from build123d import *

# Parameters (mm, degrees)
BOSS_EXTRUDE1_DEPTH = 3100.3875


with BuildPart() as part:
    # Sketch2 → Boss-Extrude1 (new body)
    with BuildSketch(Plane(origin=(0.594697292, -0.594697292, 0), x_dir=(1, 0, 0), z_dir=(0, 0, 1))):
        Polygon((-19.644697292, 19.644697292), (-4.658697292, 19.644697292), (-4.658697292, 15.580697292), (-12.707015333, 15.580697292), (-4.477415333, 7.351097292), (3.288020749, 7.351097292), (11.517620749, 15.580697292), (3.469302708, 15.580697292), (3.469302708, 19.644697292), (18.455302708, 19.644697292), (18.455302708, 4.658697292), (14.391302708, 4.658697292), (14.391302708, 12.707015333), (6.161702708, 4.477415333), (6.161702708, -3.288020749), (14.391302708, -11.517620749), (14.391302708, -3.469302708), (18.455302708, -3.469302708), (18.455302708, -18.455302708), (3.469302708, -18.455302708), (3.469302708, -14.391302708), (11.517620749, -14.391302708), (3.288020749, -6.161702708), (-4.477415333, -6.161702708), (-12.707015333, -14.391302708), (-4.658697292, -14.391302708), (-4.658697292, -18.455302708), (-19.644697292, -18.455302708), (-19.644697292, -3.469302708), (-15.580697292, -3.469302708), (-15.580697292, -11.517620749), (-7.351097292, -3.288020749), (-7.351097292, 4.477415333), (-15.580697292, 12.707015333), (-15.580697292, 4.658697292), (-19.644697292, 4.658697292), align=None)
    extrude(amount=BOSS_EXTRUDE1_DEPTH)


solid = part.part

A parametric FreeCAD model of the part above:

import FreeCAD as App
import Part
import Sketcher

V = App.Vector
Q = App.Units.Quantity


def add_polygon(sketch, points):
    """Adds a closed chain of lines whose ends are joined by coincident constraints."""
    first, n = sketch.GeometryCount, len(points)
    for a, b in zip(points, points[1:] + points[:1]):
        sketch.addGeometry(Part.LineSegment(App.Vector(*a, 0), App.Vector(*b, 0)), False)
    for i in range(n):
        sketch.addConstraint(Sketcher.Constraint("Coincident", first + i, 2, first + (i + 1) % n, 1))

doc = App.newDocument("Part")
params = doc.addObject("Spreadsheet::Sheet", "Params")
for row, (alias, value) in enumerate([
    ("sketch1_width", "0.59 in"),
    ("sketch1_width2", "0.16 in"),
    ("pad1_length", "122.0625 in"),
], start=1):
    params.set(f"A{row}", alias)
    params.set(f"B{row}", "=" + value)
    params.setAlias(f"B{row}", alias)

body = doc.addObject("PartDesign::Body", "Body")

sketch1 = doc.addObject("Sketcher::SketchObject", "Sketch")
body.addObject(sketch1)
sketch1.AttachmentSupport = (doc.XY_Plane, [""])
sketch1.MapMode = "FlatFace"
add_polygon(sketch1, [(-4.064, 19.05), (-19.05, 19.05), (-19.05, 4.064), (-14.986, 4.064), (-14.986, 12.112318), (-6.7564, 3.882718), (-6.7564, -3.882718), (-14.986, -12.112318), (-14.986, -4.064), (-19.05, -4.064), (-19.05, -19.05), (-4.064, -19.05), (-4.064, -14.986), (-12.112318, -14.986), (-3.882718, -6.7564), (3.882718, -6.7564), (12.112318, -14.986), (4.064, -14.986), (4.064, -19.05), (19.05, -19.05), (19.05, -4.064), (14.986, -4.064), (14.986, -12.112318), (6.7564, -3.882718), (6.7564, 3.882718), (14.986, 12.112318), (14.986, 4.064), (19.05, 4.064), (19.05, 19.05), (4.064, 19.05), (4.064, 14.986), (12.112318, 14.986), (3.882718, 6.7564), (-3.882718, 6.7564), (-12.112318, 14.986), (-4.064, 14.986)])
sketch1.addConstraint(Sketcher.Constraint("Horizontal", 0))
sketch1.addConstraint(Sketcher.Constraint("Vertical", 1))
sketch1.addConstraint(Sketcher.Constraint("Horizontal", 2))
sketch1.addConstraint(Sketcher.Constraint("Vertical", 3))
sketch1.addConstraint(Sketcher.Constraint("Vertical", 5))
sketch1.addConstraint(Sketcher.Constraint("Vertical", 7))
sketch1.addConstraint(Sketcher.Constraint("Horizontal", 8))
sketch1.addConstraint(Sketcher.Constraint("Vertical", 9))
sketch1.addConstraint(Sketcher.Constraint("Horizontal", 10))
sketch1.addConstraint(Sketcher.Constraint("Vertical", 11))
sketch1.addConstraint(Sketcher.Constraint("Horizontal", 12))
sketch1.addConstraint(Sketcher.Constraint("Horizontal", 14))
sketch1.addConstraint(Sketcher.Constraint("Horizontal", 16))
sketch1.addConstraint(Sketcher.Constraint("Vertical", 17))
sketch1.addConstraint(Sketcher.Constraint("Horizontal", 18))
sketch1.addConstraint(Sketcher.Constraint("Vertical", 19))
sketch1.addConstraint(Sketcher.Constraint("Horizontal", 20))
sketch1.addConstraint(Sketcher.Constraint("Vertical", 21))
sketch1.addConstraint(Sketcher.Constraint("Vertical", 23))
sketch1.addConstraint(Sketcher.Constraint("Vertical", 25))
sketch1.addConstraint(Sketcher.Constraint("Horizontal", 26))
sketch1.addConstraint(Sketcher.Constraint("Vertical", 27))
sketch1.addConstraint(Sketcher.Constraint("Horizontal", 28))
sketch1.addConstraint(Sketcher.Constraint("Vertical", 29))
sketch1.addConstraint(Sketcher.Constraint("Horizontal", 30))
sketch1.addConstraint(Sketcher.Constraint("Horizontal", 32))
sketch1.addConstraint(Sketcher.Constraint("Horizontal", 34))
sketch1.addConstraint(Sketcher.Constraint("Vertical", 35))
sketch1.addConstraint(Sketcher.Constraint("Symmetric", 0, 2, 18, 2, -1, 1))
sketch1.addConstraint(Sketcher.Constraint("Symmetric", 2, 2, 20, 2, -1, 1))
sketch1.addConstraint(Sketcher.Constraint("Symmetric", 4, 2, 22, 2, -1, 1))
sketch1.addConstraint(Sketcher.Constraint("Symmetric", 6, 2, 24, 2, -1, 1))
sketch1.addConstraint(Sketcher.Constraint("Symmetric", 8, 2, 26, 2, -1, 1))
sketch1.addConstraint(Sketcher.Constraint("Symmetric", 10, 2, 28, 2, -1, 1))
sketch1.addConstraint(Sketcher.Constraint("Symmetric", 12, 2, 30, 2, -1, 1))
sketch1.addConstraint(Sketcher.Constraint("Symmetric", 13, 2, 31, 2, -1, 1))
sketch1.addConstraint(Sketcher.Constraint("Symmetric", 15, 2, 33, 2, -1, 1))
sketch1.addConstraint(Sketcher.Constraint("Symmetric", 12, 2, 15, 2, -2))
sketch1.addConstraint(Sketcher.Constraint("Symmetric", 10, 2, 17, 2, -2))
sketch1.addConstraint(Sketcher.Constraint("Symmetric", 8, 2, 19, 2, -2))
sketch1.addConstraint(Sketcher.Constraint("Symmetric", 6, 2, 21, 2, -2))
sketch1.addConstraint(Sketcher.Constraint("Perpendicular", 4, 6))
sketch1.addConstraint(Sketcher.Constraint("Parallel", 6, 13))
sketch1.addConstraint(Sketcher.Constraint("Perpendicular", 13, 15))
sketch1.addConstraint(Sketcher.Constraint("Parallel", 15, 22))
sketch1.addConstraint(Sketcher.Constraint("Perpendicular", 22, 24))
sketch1.addConstraint(Sketcher.Constraint("Perpendicular", 31, 33))
sketch1.addConstraint(Sketcher.Constraint("Horizontal", 5, 2, 22, 2))
sketch1.addConstraint(Sketcher.Constraint("Vertical", 11, 2, 34, 2))
sketch1.addConstraint(Sketcher.Constraint("Equal", 28, 1))
sketch1.addConstraint(Sketcher.Constraint("Equal", 34, 3))
sketch1.addConstraint(Sketcher.Constraint("Equal", 32, 5))
sketch1.addConstraint(Sketcher.Constraint("Equal", 26, 11))
sketch1.addConstraint(Sketcher.Constraint("Equal", 6, 13))
sketch1.addConstraint(Sketcher.Constraint("DistanceX", 0, 2, 0, 1, Q("0.59 in")))
sketch1.addConstraint(Sketcher.Constraint("DistanceX", 2, 1, 2, 2, Q("0.16 in")))
sketch1.addConstraint(Sketcher.Constraint("DistanceX", 0, 2, -1, 1, Q("0.75 in")))
sketch1.addConstraint(Sketcher.Constraint("DistanceX", 4, 2, -1, 1, Q("0.266 in")))
sketch1.addConstraint(Sketcher.Constraint("DistanceX", 12, 2, 12, 1, 8.048318))
sketch1.setExpression("Constraints[90]", "Params.sketch1_width")
sketch1.setExpression("Constraints[91]", "Params.sketch1_width2")
pad1 = doc.addObject("PartDesign::Pad", "Pad")
body.addObject(pad1)
pad1.Profile = sketch1
pad1.setExpression("Length", "Params.pad1_length")

doc.recompute()
